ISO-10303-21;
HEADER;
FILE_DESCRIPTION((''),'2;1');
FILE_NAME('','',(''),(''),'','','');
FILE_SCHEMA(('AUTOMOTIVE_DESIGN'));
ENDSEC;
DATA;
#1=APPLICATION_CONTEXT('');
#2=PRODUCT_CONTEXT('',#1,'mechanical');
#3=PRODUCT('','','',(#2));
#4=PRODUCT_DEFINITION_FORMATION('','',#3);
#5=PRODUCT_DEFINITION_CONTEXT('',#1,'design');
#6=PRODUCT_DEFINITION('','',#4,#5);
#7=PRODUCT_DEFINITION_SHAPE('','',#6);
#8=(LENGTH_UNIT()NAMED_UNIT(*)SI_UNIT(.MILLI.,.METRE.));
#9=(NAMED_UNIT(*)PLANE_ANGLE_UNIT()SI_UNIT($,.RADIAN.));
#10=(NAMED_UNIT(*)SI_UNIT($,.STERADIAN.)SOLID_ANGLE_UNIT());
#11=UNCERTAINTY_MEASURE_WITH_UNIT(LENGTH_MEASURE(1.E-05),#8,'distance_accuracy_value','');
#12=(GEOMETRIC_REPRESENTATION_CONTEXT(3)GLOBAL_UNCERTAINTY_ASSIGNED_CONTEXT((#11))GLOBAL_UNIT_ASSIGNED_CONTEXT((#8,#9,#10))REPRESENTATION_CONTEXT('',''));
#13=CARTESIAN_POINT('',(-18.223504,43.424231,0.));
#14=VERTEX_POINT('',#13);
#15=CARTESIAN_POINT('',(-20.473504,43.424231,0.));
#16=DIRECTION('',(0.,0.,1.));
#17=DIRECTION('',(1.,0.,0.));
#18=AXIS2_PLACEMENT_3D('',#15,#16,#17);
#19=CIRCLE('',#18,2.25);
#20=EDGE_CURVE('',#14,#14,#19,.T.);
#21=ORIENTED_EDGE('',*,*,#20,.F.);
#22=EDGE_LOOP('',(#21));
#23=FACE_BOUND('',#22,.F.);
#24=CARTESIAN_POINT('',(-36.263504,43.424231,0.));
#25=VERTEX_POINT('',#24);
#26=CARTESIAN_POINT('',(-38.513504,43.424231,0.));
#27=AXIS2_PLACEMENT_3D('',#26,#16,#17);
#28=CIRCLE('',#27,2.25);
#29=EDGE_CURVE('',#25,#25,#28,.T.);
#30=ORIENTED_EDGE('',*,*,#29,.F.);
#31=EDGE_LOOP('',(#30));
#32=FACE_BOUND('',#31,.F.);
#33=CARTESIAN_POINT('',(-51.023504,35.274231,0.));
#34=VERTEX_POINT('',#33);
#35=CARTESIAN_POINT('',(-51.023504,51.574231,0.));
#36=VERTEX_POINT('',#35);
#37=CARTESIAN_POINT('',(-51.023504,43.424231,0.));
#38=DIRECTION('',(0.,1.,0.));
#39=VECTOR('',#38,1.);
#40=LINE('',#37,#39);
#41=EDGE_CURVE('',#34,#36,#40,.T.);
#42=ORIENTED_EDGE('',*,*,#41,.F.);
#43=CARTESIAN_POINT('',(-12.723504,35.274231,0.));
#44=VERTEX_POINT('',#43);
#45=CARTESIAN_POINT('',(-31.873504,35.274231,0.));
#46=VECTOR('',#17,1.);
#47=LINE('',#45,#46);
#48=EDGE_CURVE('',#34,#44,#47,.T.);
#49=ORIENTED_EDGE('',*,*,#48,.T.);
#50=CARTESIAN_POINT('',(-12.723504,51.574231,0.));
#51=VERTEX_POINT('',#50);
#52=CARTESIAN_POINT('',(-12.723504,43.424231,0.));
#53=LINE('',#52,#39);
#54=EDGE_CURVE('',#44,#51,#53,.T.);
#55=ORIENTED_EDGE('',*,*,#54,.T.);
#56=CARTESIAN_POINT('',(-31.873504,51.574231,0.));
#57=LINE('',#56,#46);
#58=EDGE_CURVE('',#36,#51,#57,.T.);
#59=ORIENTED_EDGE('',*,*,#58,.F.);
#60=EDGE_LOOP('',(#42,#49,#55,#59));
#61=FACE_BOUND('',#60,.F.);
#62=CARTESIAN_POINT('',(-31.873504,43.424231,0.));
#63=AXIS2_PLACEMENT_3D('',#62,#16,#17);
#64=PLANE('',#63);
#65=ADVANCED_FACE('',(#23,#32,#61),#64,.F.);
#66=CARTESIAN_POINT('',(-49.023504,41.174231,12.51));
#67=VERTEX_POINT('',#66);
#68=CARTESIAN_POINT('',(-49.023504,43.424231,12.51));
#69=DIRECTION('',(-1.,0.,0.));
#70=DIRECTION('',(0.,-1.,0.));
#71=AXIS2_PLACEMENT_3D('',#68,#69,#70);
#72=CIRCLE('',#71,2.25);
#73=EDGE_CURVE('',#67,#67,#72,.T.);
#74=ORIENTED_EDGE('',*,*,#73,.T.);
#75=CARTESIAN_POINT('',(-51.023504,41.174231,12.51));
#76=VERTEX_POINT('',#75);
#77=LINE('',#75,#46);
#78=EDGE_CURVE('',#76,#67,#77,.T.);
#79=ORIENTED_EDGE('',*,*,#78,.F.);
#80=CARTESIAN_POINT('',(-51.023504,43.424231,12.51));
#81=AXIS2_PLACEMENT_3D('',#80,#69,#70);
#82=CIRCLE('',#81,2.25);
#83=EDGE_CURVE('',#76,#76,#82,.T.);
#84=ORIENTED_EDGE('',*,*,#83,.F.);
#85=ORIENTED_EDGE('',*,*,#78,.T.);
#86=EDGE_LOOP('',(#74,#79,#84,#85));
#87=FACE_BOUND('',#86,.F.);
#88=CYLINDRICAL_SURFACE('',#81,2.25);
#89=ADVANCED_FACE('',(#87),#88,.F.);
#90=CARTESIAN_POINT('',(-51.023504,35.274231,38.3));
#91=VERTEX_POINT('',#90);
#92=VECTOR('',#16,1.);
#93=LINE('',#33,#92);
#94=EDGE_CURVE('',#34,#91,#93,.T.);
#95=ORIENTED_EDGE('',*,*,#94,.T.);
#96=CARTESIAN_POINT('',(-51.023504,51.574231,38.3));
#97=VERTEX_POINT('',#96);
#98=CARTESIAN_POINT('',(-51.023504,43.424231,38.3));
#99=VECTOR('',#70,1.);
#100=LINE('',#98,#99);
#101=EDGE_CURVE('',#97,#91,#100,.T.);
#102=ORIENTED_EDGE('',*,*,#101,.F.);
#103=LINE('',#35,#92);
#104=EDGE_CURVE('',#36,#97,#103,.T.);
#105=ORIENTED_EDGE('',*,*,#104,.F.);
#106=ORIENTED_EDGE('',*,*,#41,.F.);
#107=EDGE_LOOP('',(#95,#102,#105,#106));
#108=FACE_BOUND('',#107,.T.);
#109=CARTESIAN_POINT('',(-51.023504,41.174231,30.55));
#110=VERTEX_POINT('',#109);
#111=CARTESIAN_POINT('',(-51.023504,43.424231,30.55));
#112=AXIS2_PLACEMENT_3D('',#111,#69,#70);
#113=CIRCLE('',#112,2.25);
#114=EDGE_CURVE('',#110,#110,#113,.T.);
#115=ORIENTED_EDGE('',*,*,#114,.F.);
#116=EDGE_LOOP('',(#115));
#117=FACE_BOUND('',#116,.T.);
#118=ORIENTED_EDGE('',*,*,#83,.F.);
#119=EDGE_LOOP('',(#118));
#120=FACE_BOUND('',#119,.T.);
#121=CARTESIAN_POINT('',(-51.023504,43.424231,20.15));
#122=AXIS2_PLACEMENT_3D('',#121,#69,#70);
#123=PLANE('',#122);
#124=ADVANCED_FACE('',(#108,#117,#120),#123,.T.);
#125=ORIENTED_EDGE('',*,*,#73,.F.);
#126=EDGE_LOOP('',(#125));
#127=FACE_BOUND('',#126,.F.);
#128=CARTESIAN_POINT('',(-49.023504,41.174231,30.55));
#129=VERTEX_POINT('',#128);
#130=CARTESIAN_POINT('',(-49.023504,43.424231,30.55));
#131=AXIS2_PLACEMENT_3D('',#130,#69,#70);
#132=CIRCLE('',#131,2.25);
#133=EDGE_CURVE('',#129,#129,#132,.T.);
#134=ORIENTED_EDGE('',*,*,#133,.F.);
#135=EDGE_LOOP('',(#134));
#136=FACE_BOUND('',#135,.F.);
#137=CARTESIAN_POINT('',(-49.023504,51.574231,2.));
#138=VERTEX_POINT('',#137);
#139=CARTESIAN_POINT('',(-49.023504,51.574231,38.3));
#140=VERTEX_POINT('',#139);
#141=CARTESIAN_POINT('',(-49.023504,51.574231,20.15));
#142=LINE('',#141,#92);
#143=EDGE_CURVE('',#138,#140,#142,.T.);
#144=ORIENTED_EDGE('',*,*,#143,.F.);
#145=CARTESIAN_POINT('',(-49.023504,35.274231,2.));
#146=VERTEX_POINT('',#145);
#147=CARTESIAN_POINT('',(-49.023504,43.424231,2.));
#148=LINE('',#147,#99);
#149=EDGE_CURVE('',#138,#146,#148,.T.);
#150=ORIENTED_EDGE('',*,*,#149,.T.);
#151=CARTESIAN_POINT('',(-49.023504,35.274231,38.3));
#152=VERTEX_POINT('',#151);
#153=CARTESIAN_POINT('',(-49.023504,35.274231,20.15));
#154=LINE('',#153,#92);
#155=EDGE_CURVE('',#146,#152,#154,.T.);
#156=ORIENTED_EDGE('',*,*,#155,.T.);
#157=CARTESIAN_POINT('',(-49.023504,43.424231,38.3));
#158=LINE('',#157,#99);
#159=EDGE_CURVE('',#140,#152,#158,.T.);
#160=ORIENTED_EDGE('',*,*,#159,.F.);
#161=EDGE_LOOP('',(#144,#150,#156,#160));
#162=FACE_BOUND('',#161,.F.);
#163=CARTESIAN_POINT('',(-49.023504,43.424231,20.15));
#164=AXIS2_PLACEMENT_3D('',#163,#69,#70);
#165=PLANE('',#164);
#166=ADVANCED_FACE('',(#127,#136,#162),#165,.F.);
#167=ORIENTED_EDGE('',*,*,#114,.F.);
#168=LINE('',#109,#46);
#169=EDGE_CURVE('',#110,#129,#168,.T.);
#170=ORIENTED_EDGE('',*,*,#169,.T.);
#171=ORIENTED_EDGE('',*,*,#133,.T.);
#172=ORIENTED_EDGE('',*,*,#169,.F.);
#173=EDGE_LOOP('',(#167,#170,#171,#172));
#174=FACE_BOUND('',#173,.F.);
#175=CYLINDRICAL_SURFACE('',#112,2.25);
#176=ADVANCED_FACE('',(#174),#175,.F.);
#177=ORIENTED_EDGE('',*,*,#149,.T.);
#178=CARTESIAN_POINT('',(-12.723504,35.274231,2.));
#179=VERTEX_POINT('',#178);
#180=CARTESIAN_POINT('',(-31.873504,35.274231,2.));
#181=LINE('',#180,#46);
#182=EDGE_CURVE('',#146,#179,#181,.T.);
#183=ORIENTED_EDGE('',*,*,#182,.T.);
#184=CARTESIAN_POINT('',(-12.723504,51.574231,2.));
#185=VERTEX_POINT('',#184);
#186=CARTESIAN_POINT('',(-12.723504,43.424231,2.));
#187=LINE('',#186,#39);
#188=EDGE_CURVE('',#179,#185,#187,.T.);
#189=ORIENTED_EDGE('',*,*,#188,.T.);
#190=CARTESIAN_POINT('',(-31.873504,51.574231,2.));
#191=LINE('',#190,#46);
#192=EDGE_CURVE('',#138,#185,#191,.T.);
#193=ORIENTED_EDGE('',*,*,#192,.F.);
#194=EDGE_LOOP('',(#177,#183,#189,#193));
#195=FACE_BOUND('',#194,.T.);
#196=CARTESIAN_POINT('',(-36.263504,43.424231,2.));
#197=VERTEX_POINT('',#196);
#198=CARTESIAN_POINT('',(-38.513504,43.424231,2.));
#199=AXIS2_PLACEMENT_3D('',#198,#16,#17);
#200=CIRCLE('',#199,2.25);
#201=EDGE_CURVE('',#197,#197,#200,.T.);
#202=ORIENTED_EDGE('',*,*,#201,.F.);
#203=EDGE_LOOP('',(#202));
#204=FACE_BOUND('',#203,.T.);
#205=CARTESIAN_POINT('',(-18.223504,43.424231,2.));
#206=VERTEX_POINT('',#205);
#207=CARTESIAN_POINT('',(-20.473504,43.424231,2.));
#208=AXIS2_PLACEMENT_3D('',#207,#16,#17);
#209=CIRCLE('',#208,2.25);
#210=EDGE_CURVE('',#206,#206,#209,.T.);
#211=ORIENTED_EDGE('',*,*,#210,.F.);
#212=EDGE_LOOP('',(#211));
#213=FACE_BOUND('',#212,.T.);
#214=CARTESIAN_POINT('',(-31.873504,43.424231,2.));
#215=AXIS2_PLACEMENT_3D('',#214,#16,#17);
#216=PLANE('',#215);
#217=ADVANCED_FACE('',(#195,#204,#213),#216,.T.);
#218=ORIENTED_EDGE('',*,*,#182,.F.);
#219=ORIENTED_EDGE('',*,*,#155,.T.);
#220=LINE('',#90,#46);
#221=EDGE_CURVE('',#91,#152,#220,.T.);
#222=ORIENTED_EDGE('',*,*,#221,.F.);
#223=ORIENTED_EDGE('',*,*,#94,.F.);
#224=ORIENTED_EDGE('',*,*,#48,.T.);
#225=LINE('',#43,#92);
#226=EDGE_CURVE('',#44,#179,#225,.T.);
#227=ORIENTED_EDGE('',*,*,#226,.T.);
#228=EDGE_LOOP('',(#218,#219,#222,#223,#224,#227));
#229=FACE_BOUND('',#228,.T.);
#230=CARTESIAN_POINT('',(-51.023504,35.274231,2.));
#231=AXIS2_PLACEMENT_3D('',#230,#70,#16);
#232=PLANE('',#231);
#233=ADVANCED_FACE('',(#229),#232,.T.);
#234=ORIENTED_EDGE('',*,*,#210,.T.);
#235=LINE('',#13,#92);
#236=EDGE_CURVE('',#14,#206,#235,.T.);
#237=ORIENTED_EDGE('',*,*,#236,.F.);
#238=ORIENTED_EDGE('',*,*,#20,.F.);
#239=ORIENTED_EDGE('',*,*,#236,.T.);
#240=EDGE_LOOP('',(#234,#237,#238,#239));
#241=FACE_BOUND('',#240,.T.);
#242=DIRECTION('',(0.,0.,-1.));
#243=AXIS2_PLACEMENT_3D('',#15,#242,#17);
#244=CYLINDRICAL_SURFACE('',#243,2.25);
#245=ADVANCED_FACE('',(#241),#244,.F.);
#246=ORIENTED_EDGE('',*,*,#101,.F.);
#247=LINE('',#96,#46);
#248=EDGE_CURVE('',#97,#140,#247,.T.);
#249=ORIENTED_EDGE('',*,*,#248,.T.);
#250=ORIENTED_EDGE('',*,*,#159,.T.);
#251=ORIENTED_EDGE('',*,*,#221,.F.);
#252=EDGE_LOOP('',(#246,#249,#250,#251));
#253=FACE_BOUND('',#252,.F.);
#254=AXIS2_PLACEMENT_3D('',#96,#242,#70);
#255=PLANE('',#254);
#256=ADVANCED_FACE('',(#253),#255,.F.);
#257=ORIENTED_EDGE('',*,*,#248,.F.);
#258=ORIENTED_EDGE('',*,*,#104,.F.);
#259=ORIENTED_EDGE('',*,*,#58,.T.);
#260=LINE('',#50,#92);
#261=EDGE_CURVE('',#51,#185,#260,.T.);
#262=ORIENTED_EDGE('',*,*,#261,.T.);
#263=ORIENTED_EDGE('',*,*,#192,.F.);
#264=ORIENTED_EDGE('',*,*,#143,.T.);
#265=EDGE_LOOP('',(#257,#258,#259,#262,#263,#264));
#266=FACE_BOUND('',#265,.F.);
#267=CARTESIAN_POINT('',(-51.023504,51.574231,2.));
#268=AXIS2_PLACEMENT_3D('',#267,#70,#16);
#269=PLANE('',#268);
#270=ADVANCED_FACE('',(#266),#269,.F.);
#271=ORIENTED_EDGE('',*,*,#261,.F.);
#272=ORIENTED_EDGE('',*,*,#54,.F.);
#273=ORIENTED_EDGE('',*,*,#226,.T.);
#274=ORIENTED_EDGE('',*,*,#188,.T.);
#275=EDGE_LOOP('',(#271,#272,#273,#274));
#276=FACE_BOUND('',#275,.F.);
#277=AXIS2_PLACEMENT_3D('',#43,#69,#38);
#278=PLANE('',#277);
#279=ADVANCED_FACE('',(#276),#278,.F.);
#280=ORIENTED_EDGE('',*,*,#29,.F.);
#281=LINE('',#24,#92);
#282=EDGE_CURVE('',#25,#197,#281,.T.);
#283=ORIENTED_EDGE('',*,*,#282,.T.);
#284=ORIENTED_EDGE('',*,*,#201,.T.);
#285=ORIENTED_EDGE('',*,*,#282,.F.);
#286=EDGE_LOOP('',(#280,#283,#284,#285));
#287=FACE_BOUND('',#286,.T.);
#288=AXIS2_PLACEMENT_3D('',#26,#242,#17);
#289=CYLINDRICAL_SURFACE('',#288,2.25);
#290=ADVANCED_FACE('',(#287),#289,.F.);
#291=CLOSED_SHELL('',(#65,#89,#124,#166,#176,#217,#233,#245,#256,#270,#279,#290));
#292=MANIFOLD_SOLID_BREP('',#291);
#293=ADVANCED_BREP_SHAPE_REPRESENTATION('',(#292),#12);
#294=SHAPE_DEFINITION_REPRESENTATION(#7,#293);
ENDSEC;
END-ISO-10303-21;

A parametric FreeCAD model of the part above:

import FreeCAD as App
import Part
import Sketcher
Q = App.Units.Quantity


def add_polygon(sketch, points):
    """Adds a closed chain of lines whose ends are joined by coincident constraints."""
    first, n = sketch.GeometryCount, len(points)
    for a, b in zip(points, points[1:] + points[:1]):
        sketch.addGeometry(Part.LineSegment(App.Vector(*a, 0), App.Vector(*b, 0)), False)
    for i in range(n):
        sketch.addConstraint(Sketcher.Constraint("Coincident", first + i, 2, first + (i + 1) % n, 1))

doc = App.newDocument("Part")
params = doc.addObject("Spreadsheet::Sheet", "Params")
for row, (alias, value) in enumerate([
    ("sketch1_diameter", "4.5 mm"),
    ("sketch1_width", "38.3 mm"),
    ("sketch1_height", "16.3 mm"),
    ("pad1_length", "2 mm"),
    ("sketch2_diameter", "4.5 mm"),
    ("sketch2_width", "16.3 mm"),
    ("sketch2_height", "36.3 mm"),
    ("pad2_length", "2 mm"),
], start=1):
    params.set(f"A{row}", alias)
    params.set(f"B{row}", "=" + value)
    params.setAlias(f"B{row}", alias)

body = doc.addObject("PartDesign::Body", "Body")

sketch1 = body.newObject("Sketcher::SketchObject", "Sketch")
sketch1.AttachmentSupport = (doc.getObject("XY_Plane"), [""])
sketch1.MapMode = "FlatFace"
add_polygon(sketch1, [(-51, 51.6), (-51, 35.3), (-12.7, 35.3), (-12.7, 51.6)])
sketch1.addGeometry(Part.Circle(App.Vector(-38.5, 43.4, 0), App.Vector(0, 0, 1), 2.2), False)
sketch1.addGeometry(Part.Circle(App.Vector(-20.5, 43.4, 0), App.Vector(0, 0, 1), 2.2), False)
sketch1.addConstraint(Sketcher.Constraint("Vertical", 0))
sketch1.addConstraint(Sketcher.Constraint("Horizontal", 1))
sketch1.addConstraint(Sketcher.Constraint("Vertical", 2))
sketch1.addConstraint(Sketcher.Constraint("Horizontal", 3))
sketch1.addConstraint(Sketcher.Constraint("Equal", 4, 5))
sketch1.addConstraint(Sketcher.Constraint("Horizontal", 4, 3, 5, 3))
sketch1.addConstraint(Sketcher.Constraint("Diameter", 4, Q("4.5 mm")))
sketch1.addConstraint(Sketcher.Constraint("DistanceX", 1, 1, 1, 2, Q("38.3 mm")))
sketch1.addConstraint(Sketcher.Constraint("DistanceY", 0, 2, 0, 1, Q("16.3 mm")))
sketch1.addConstraint(Sketcher.Constraint("DistanceX", 4, 3, 5, 3, Q("18.04 mm")))
sketch1.addConstraint(Sketcher.Constraint("DistanceX", 0, 2, 4, 3, Q("12.51 mm")))
sketch1.addConstraint(Sketcher.Constraint("DistanceY", 0, 2, 4, 3, Q("8.15 mm")))
sketch1.addConstraint(Sketcher.Constraint("DistanceY", -1, 1, 4, 3, Q("43.424231 mm")))
sketch1.addConstraint(Sketcher.Constraint("DistanceX", 4, 3, -1, 1, Q("38.513504 mm")))
sketch1.setExpression("Constraints[10]", "Params.sketch1_diameter")
sketch1.setExpression("Constraints[11]", "Params.sketch1_width")
sketch1.setExpression("Constraints[12]", "Params.sketch1_height")
pad1 = body.newObject("PartDesign::Pad", "Pad")
pad1.Profile = sketch1
pad1.setExpression("Length", "Params.pad1_length")

sketch2 = body.newObject("Sketcher::SketchObject", "Sketch001")
sketch2.AttachmentSupport = (doc.getObject("YZ_Plane"), [""])
sketch2.MapMode = "FlatFace"
sketch2.AttachmentOffset = App.Placement(App.Vector(0, 0, -51.023504), App.Rotation())
add_polygon(sketch2, [(51.6, 38.3), (51.6, 2), (35.3, 2), (35.3, 38.3)])
sketch2.addGeometry(Part.Circle(App.Vector(43.4, 12.5, 0), App.Vector(0, 0, 1), 2.2), False)
sketch2.addGeometry(Part.Circle(App.Vector(43.4, 30.6, 0), App.Vector(0, 0, 1), 2.2), False)
sketch2.addConstraint(Sketcher.Constraint("Vertical", 0))
sketch2.addConstraint(Sketcher.Constraint("Horizontal", 1))
sketch2.addConstraint(Sketcher.Constraint("Vertical", 2))
sketch2.addConstraint(Sketcher.Constraint("Horizontal", 3))
sketch2.addConstraint(Sketcher.Constraint("Equal", 4, 5))
sketch2.addConstraint(Sketcher.Constraint("Vertical", 4, 3, 5, 3))
sketch2.addConstraint(Sketcher.Constraint("Diameter", 4, Q("4.5 mm")))
sketch2.addConstraint(Sketcher.Constraint("DistanceX", 1, 2, 1, 1, Q("16.3 mm")))
sketch2.addConstraint(Sketcher.Constraint("DistanceY", 0, 2, 0, 1, Q("36.3 mm")))
sketch2.addConstraint(Sketcher.Constraint("DistanceY", -1, 1, 0, 2, Q("2 mm")))
sketch2.addConstraint(Sketcher.Constraint("DistanceY", -1, 1, 4, 3, Q("12.51 mm")))
sketch2.addConstraint(Sketcher.Constraint("DistanceY", -1, 1, 5, 3, Q("30.55 mm")))
sketch2.addConstraint(Sketcher.Constraint("DistanceX", 4, 3, 0, 2, Q("8.15 mm")))
sketch2.addConstraint(Sketcher.Constraint("DistanceX", -1, 1, 4, 3, Q("43.424231 mm")))
sketch2.setExpression("Constraints[10]", "Params.sketch2_diameter")
sketch2.setExpression("Constraints[11]", "Params.sketch2_width")
sketch2.setExpression("Constraints[12]", "Params.sketch2_height")
pad2 = body.newObject("PartDesign::Pad", "Pad001")
pad2.Profile = sketch2
pad2.setExpression("Length", "Params.pad2_length")

doc.recompute()
